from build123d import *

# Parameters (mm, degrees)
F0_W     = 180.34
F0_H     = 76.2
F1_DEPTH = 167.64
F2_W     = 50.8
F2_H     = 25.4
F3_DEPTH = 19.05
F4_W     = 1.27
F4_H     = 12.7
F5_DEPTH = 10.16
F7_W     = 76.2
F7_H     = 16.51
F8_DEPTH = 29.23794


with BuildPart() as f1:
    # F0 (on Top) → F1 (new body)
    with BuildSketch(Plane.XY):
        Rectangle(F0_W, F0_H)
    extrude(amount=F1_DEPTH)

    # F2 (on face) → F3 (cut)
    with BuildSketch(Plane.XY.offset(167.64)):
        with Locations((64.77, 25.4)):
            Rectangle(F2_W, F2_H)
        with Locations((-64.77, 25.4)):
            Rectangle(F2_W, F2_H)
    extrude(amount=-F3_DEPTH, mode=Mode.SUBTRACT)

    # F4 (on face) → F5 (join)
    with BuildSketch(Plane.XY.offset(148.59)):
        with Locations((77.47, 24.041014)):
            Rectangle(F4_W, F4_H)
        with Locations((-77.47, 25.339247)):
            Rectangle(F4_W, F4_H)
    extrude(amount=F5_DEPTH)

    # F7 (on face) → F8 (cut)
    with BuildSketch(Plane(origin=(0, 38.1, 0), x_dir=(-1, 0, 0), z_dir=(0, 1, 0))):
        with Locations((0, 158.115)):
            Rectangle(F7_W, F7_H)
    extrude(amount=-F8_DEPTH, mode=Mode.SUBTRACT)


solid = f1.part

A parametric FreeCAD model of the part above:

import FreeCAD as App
import Part
import Sketcher
from FreeCAD import Vector
Q = App.Units.Quantity


def add_polygon(sketch, points):
    """Adds a closed chain of lines whose ends are joined by coincident constraints."""
    first, n = sketch.GeometryCount, len(points)
    for a, b in zip(points, points[1:] + points[:1]):
        sketch.addGeometry(Part.LineSegment(App.Vector(*a, 0), App.Vector(*b, 0)), False)
    for i in range(n):
        sketch.addConstraint(Sketcher.Constraint("Coincident", first + i, 2, first + (i + 1) % n, 1))

doc = App.newDocument("Part")
body = doc.addObject("PartDesign::Body", "Body")

sketch1 = doc.addObject("Sketcher::SketchObject", "Sketch")
body.addObject(sketch1)
sketch1.AttachmentSupport = (doc.XY_Plane, [""])
sketch1.MapMode = "FlatFace"
add_polygon(sketch1, [(-90.17, 38.1), (-90.17, -38.1), (90.17, -38.1), (90.17, 38.1)])
sketch1.addConstraint(Sketcher.Constraint("Vertical", 0))
sketch1.addConstraint(Sketcher.Constraint("Horizontal", 1))
sketch1.addConstraint(Sketcher.Constraint("Vertical", 2))
sketch1.addConstraint(Sketcher.Constraint("Horizontal", 3))
sketch1.addConstraint(Sketcher.Constraint("Symmetric", 0, 2, 2, 2, -1, 1))
sketch1.addConstraint(Sketcher.Constraint("DistanceY", 0, 2, 0, 1, Q("3 in")))
sketch1.addConstraint(Sketcher.Constraint("DistanceX", 1, 1, 1, 2, Q("7.1 in")))
pad1 = doc.addObject("PartDesign::Pad", "Pad")
body.addObject(pad1)
pad1.Profile = sketch1
pad1.Length = Q("6.6 in")

sketch2 = doc.addObject("Sketcher::SketchObject", "Sketch001")
body.addObject(sketch2)
sketch2.AttachmentSupport = (doc.XY_Plane, [""])
sketch2.MapMode = "FlatFace"
sketch2.AttachmentOffset = App.Placement(Vector(0, 0, 6.6 * 25.4), App.Rotation())
add_polygon(sketch2, [(39.37, 38.1), (39.37, 12.7), (90.17, 12.7), (90.17, 38.1)])
add_polygon(sketch2, [(-90.17, 38.1), (-90.17, 12.7), (-39.37, 12.7), (-39.37, 38.1)])
sketch2.addConstraint(Sketcher.Constraint("Vertical", 0))
sketch2.addConstraint(Sketcher.Constraint("Horizontal", 1))
sketch2.addConstraint(Sketcher.Constraint("Vertical", 2))
sketch2.addConstraint(Sketcher.Constraint("Horizontal", 3))
sketch2.addConstraint(Sketcher.Constraint("Vertical", 4))
sketch2.addConstraint(Sketcher.Constraint("Horizontal", 5))
sketch2.addConstraint(Sketcher.Constraint("Vertical", 6))
sketch2.addConstraint(Sketcher.Constraint("Horizontal", 7))
sketch2.addConstraint(Sketcher.Constraint("Symmetric", 1, 2, 4, 2, -2))
sketch2.addConstraint(Sketcher.Constraint("Symmetric", 3, 2, 6, 2, -2))
sketch2.addConstraint(Sketcher.Constraint("DistanceX", 1, 1, 1, 2, Q("2 in")))
sketch2.addConstraint(Sketcher.Constraint("DistanceY", 0, 2, 0, 1, Q("1 in")))
sketch2.addConstraint(Sketcher.Constraint("DistanceY", -1, 1, 0, 2, Q("0.5 in")))
sketch2.addConstraint(Sketcher.Constraint("DistanceX", 4, 2, 0, 2, Q("5.1 in")))
pocket1 = doc.addObject("PartDesign::Pocket", "Pocket")
body.addObject(pocket1)
pocket1.Profile = sketch2
pocket1.Length = Q("0.75 in")

sketch3 = doc.addObject("Sketcher::SketchObject", "Sketch002")
body.addObject(sketch3)
sketch3.AttachmentSupport = (doc.XY_Plane, [""])
sketch3.MapMode = "FlatFace"
sketch3.AttachmentOffset = App.Placement(Vector(0, 0, 5.85 * 25.4), App.Rotation())
add_polygon(sketch3, [(76.835, 30.391014), (76.835, 17.691014), (78.105, 17.691014), (78.105, 30.391014)])
add_polygon(sketch3, [(-78.105, 31.689247), (-78.105, 18.989247), (-76.835, 18.989247), (-76.835, 31.689247)])
sketch3.addConstraint(Sketcher.Constraint("Vertical", 0))
sketch3.addConstraint(Sketcher.Constraint("Horizontal", 1))
sketch3.addConstraint(Sketcher.Constraint("Vertical", 2))
sketch3.addConstraint(Sketcher.Constraint("Horizontal", 3))
sketch3.addConstraint(Sketcher.Constraint("Vertical", 4))
sketch3.addConstraint(Sketcher.Constraint("Horizontal", 5))
sketch3.addConstraint(Sketcher.Constraint("Vertical", 6))
sketch3.addConstraint(Sketcher.Constraint("Horizontal", 7))
sketch3.addConstraint(Sketcher.Constraint("Equal", 3, 5))
sketch3.addConstraint(Sketcher.Constraint("Equal", 2, 4))
sketch3.addConstraint(Sketcher.Constraint("DistanceY", 0, 2, 0, 1, Q("0.5 in")))
sketch3.addConstraint(Sketcher.Constraint("DistanceX", 1, 1, 1, 2, Q("0.05 in")))
sketch3.addConstraint(Sketcher.Constraint("DistanceX", 4, 2, 0, 2, Q("6.1 in")))
sketch3.addConstraint(Sketcher.Constraint("DistanceX", -1, 1, 0, 2, Q("3.025 in")))
sketch3.addConstraint(Sketcher.Constraint("DistanceY", -1, 1, 0, 2, 17.691014))
sketch3.addConstraint(Sketcher.Constraint("DistanceY", -1, 1, 4, 2, 18.989247))
pad2 = doc.addObject("PartDesign::Pad", "Pad001")
body.addObject(pad2)
pad2.Profile = sketch3
pad2.Length = Q("0.4 in")

sketch4 = doc.addObject("Sketcher::SketchObject", "Sketch003")
body.addObject(sketch4)
sketch4.AttachmentSupport = (doc.XZ_Plane, [""])
sketch4.MapMode = "FlatFace"
sketch4.AttachmentOffset = App.Placement(Vector(0, 0, -1.5 * 25.4), App.Rotation())
add_polygon(sketch4, [(38.1, 166.37), (38.1, 149.86), (-38.1, 149.86), (-38.1, 166.37)])
sketch4.addConstraint(Sketcher.Constraint("Vertical", 0))
sketch4.addConstraint(Sketcher.Constraint("Horizontal", 1))
sketch4.addConstraint(Sketcher.Constraint("Vertical", 2))
sketch4.addConstraint(Sketcher.Constraint("Horizontal", 3))
sketch4.addConstraint(Sketcher.Constraint("DistanceX", 1, 2, 1, 1, Q("3 in")))
sketch4.addConstraint(Sketcher.Constraint("DistanceY", 0, 2, 0, 1, Q("0.65 in")))
sketch4.addConstraint(Sketcher.Constraint("DistanceX", -1, 1, 0, 2, Q("1.5 in")))
sketch4.addConstraint(Sketcher.Constraint("DistanceY", -1, 1, 0, 2, Q("5.9 in")))
pocket2 = doc.addObject("PartDesign::Pocket", "Pocket001")
body.addObject(pocket2)
pocket2.Profile = sketch4
pocket2.Length = Q("1.1511 in")
pocket2.Reversed = True

doc.recompute()
